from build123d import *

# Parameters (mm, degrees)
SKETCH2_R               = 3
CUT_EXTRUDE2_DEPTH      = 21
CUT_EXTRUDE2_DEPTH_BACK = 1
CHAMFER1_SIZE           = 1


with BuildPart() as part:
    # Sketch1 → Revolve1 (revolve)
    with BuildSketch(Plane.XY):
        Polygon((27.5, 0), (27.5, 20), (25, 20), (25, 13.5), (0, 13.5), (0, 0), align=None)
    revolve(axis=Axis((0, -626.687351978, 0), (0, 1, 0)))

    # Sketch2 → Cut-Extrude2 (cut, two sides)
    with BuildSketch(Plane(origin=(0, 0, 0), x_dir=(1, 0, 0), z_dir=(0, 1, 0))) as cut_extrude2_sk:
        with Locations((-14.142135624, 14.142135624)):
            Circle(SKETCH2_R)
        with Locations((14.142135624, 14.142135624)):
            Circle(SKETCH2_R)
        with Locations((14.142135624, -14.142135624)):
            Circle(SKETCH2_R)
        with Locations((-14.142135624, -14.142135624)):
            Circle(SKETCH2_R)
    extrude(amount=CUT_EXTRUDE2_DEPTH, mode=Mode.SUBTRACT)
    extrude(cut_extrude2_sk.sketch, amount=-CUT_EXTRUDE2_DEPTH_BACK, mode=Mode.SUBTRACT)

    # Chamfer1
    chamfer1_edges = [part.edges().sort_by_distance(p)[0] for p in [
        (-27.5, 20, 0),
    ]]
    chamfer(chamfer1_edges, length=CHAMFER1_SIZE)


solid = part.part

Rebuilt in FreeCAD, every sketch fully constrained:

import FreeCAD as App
import Part
import Sketcher
from FreeCAD import Vector
Q = App.Units.Quantity


def edges_at(feature, points):
    """Names of the edges that pass closest to the given points."""
    edges = feature.Shape.Edges
    near = lambda p: min(range(len(edges)), key=lambda i: edges[i].distToShape(Part.Vertex(*p))[0])
    return sorted({f"Edge{near(p) + 1}" for p in points})

doc = App.newDocument("Part")
body = doc.addObject("PartDesign::Body", "Body")

# Sketch on XY plane
sketch1 = body.newObject("Sketcher::SketchObject", "Sketch")
sketch1.AttachmentSupport = (doc.getObject("XY_Plane"), [""])
sketch1.MapMode = "FlatFace"
sketch1.addGeometry(Part.LineSegment(Vector(27.5, 0, 0), Vector(27.5, 20, 0)), False)
sketch1.addGeometry(Part.LineSegment(Vector(27.5, 20, 0), Vector(25, 20, 0)), False)
sketch1.addGeometry(Part.LineSegment(Vector(25, 20, 0), Vector(25, 13.5, 0)), False)
sketch1.addGeometry(Part.LineSegment(Vector(25, 13.5, 0), Vector(0, 13.5, 0)), False)
sketch1.addGeometry(Part.LineSegment(Vector(0, 13.5, 0), Vector(0, 0, 0)), False)
sketch1.addGeometry(Part.LineSegment(Vector(0, 0, 0), Vector(27.5, 0, 0)), False)
sketch1.addConstraint(Sketcher.Constraint("Coincident", 0, 2, 1, 1))
sketch1.addConstraint(Sketcher.Constraint("Coincident", 1, 2, 2, 1))
sketch1.addConstraint(Sketcher.Constraint("Coincident", 2, 2, 3, 1))
sketch1.addConstraint(Sketcher.Constraint("Coincident", 3, 2, 4, 1))
sketch1.addConstraint(Sketcher.Constraint("Coincident", 4, 2, 5, 1))
sketch1.addConstraint(Sketcher.Constraint("Coincident", 5, 2, 0, 1))
sketch1.addConstraint(Sketcher.Constraint("Vertical", 0))
sketch1.addConstraint(Sketcher.Constraint("Horizontal", 1))
sketch1.addConstraint(Sketcher.Constraint("Vertical", 2))
sketch1.addConstraint(Sketcher.Constraint("Horizontal", 3))
sketch1.addConstraint(Sketcher.Constraint("Vertical", 4))
sketch1.addConstraint(Sketcher.Constraint("Horizontal", 5))
sketch1.addConstraint(Sketcher.Constraint("Coincident", 4, 2, -1, 1))
sketch1.addConstraint(Sketcher.Constraint("DistanceX", 3, 2, 3, 1, Q("25 mm")))
sketch1.addConstraint(Sketcher.Constraint("DistanceY", 0, 1, 0, 2, Q("20 mm")))
sketch1.addConstraint(Sketcher.Constraint("DistanceX", 1, 2, 1, 1, Q("2.5 mm")))
sketch1.addConstraint(Sketcher.Constraint("DistanceY", 2, 2, 2, 1, Q("6.5 mm")))
revolution = body.newObject("PartDesign::Revolution", "Revolution")
revolution.Profile = sketch1
revolution.ReferenceAxis = (sketch1, ["V_Axis"])
revolution.Angle = 360

# Sketch on XZ plane
sketch2 = body.newObject("Sketcher::SketchObject", "Sketch001")
sketch2.AttachmentSupport = (doc.getObject("XZ_Plane"), [""])
sketch2.MapMode = "FlatFace"
sketch2.addGeometry(Part.Circle(Vector(-14.142136, -14.142136, 0), Vector(0, 0, 1), 3), False)
sketch2.addGeometry(Part.Circle(Vector(14.142136, -14.142136, 0), Vector(0, 0, 1), 3), False)
sketch2.addGeometry(Part.Circle(Vector(14.142136, 14.142136, 0), Vector(0, 0, 1), 3), False)
sketch2.addGeometry(Part.Circle(Vector(-14.142136, 14.142136, 0), Vector(0, 0, 1), 3), False)
sketch2.addConstraint(Sketcher.Constraint("Equal", 0, 1))
sketch2.addConstraint(Sketcher.Constraint("Equal", 1, 2))
sketch2.addConstraint(Sketcher.Constraint("Equal", 2, 3))
sketch2.addConstraint(Sketcher.Constraint("Symmetric", 0, 3, 2, 3, -1, 1))
sketch2.addConstraint(Sketcher.Constraint("Symmetric", 1, 3, 3, 3, -1, 1))
sketch2.addConstraint(Sketcher.Constraint("Symmetric", 0, 3, 1, 3, -2))
sketch2.addConstraint(Sketcher.Constraint("Diameter", 0, Q("6 mm")))
sketch2.addConstraint(Sketcher.Constraint("DistanceX", 0, 3, 1, 3, Q("28.284271 mm")))
sketch2.addConstraint(Sketcher.Constraint("DistanceY", 1, 3, 2, 3, Q("28.284271 mm")))
pocket1 = body.newObject("PartDesign::Pocket", "Pocket")
pocket1.Profile = sketch2
pocket1.Type = "ThroughAll"
pocket1.Midplane = True
doc.recompute()

chamfer = body.newObject("PartDesign::Chamfer", "Chamfer")
chamfer.Base = (pocket1, edges_at(pocket1, [(-27.5, 20, 0)]))
chamfer.Size = 1

doc.recompute()
